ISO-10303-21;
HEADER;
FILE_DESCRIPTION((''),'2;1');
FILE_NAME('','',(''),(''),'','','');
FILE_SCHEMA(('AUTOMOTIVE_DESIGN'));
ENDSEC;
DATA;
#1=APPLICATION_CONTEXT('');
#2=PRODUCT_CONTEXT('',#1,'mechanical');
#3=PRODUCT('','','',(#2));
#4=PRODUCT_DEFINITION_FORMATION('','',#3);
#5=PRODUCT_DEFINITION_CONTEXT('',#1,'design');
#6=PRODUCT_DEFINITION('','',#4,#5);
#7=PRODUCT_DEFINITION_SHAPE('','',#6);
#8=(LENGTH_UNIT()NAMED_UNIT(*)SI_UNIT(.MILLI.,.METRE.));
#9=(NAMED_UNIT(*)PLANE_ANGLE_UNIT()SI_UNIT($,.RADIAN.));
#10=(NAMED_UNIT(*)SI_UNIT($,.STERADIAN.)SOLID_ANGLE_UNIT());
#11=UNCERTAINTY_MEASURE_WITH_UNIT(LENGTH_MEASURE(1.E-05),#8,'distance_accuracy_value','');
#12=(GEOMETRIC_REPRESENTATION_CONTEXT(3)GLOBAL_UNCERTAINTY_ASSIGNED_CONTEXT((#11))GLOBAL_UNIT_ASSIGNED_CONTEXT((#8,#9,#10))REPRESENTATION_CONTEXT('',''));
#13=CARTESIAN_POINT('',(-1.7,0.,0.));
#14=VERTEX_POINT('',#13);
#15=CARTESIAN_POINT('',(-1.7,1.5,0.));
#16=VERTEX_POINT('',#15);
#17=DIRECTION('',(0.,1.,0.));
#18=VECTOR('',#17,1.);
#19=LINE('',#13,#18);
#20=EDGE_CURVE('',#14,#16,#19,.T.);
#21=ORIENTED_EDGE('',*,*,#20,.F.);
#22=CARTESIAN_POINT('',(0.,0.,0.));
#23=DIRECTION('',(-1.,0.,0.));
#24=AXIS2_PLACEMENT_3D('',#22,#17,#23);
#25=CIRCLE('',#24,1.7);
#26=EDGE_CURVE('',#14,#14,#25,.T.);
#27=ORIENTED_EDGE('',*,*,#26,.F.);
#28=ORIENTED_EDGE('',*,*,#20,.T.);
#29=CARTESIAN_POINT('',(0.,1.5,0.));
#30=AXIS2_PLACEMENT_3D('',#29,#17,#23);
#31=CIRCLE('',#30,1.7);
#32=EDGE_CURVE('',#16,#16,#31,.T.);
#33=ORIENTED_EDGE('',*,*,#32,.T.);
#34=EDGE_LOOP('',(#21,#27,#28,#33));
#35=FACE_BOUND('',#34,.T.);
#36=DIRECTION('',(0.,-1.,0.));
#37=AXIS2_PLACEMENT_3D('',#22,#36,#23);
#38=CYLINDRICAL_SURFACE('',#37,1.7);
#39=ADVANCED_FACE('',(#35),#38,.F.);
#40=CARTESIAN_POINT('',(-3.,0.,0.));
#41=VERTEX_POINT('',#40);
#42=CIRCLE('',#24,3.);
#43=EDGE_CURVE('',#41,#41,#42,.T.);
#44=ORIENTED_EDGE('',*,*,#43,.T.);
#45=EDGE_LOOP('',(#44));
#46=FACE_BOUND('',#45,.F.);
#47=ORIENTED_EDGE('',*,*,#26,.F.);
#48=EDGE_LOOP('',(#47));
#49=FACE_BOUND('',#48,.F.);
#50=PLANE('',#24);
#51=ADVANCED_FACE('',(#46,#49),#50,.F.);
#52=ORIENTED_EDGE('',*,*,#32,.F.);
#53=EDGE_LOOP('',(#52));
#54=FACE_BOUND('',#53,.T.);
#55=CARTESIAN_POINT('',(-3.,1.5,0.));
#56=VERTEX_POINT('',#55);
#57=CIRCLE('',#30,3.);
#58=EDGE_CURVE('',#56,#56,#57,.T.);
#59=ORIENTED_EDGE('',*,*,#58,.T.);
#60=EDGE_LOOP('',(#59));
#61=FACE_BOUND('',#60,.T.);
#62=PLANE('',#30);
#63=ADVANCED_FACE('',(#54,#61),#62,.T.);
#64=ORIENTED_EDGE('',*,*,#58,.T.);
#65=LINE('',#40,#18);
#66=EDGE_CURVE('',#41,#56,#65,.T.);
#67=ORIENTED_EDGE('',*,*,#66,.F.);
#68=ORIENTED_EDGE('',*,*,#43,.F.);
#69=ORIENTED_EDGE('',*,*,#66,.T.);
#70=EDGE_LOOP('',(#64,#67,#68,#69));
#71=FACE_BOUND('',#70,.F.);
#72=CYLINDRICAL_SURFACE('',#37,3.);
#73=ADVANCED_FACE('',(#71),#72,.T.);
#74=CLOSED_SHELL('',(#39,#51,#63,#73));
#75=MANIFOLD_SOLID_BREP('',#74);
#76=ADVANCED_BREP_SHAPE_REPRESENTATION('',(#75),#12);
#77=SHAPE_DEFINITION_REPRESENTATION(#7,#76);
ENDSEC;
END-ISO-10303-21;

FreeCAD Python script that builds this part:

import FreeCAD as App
import Part
import Sketcher
Q = App.Units.Quantity

doc = App.newDocument("Part")
body = doc.addObject("PartDesign::Body", "Body")

sketch1 = body.newObject("Sketcher::SketchObject", "Sketch")
sketch1.AttachmentSupport = (doc.getObject("XZ_Plane"), [""])
sketch1.MapMode = "FlatFace"
sketch1.addGeometry([
    Part.Circle(App.Vector(0, 0, 0), App.Vector(0, 0, 1), 3),
    Part.Circle(App.Vector(0, 0, 0), App.Vector(0, 0, 1), 1.7),
], False)
sketch1.addConstraint([
    Sketcher.Constraint("Coincident", 0, 3, -1, 1),
    Sketcher.Constraint("Coincident", 1, 3, -1, 1),
    Sketcher.Constraint("Diameter", 0, Q("6 mm")),
    Sketcher.Constraint("Diameter", 1, Q("3.4 mm")),
])
pad1 = body.newObject("PartDesign::Pad", "Pad")
pad1.Profile = sketch1
pad1.Length = 1.5
pad1.Reversed = True

doc.recompute()
